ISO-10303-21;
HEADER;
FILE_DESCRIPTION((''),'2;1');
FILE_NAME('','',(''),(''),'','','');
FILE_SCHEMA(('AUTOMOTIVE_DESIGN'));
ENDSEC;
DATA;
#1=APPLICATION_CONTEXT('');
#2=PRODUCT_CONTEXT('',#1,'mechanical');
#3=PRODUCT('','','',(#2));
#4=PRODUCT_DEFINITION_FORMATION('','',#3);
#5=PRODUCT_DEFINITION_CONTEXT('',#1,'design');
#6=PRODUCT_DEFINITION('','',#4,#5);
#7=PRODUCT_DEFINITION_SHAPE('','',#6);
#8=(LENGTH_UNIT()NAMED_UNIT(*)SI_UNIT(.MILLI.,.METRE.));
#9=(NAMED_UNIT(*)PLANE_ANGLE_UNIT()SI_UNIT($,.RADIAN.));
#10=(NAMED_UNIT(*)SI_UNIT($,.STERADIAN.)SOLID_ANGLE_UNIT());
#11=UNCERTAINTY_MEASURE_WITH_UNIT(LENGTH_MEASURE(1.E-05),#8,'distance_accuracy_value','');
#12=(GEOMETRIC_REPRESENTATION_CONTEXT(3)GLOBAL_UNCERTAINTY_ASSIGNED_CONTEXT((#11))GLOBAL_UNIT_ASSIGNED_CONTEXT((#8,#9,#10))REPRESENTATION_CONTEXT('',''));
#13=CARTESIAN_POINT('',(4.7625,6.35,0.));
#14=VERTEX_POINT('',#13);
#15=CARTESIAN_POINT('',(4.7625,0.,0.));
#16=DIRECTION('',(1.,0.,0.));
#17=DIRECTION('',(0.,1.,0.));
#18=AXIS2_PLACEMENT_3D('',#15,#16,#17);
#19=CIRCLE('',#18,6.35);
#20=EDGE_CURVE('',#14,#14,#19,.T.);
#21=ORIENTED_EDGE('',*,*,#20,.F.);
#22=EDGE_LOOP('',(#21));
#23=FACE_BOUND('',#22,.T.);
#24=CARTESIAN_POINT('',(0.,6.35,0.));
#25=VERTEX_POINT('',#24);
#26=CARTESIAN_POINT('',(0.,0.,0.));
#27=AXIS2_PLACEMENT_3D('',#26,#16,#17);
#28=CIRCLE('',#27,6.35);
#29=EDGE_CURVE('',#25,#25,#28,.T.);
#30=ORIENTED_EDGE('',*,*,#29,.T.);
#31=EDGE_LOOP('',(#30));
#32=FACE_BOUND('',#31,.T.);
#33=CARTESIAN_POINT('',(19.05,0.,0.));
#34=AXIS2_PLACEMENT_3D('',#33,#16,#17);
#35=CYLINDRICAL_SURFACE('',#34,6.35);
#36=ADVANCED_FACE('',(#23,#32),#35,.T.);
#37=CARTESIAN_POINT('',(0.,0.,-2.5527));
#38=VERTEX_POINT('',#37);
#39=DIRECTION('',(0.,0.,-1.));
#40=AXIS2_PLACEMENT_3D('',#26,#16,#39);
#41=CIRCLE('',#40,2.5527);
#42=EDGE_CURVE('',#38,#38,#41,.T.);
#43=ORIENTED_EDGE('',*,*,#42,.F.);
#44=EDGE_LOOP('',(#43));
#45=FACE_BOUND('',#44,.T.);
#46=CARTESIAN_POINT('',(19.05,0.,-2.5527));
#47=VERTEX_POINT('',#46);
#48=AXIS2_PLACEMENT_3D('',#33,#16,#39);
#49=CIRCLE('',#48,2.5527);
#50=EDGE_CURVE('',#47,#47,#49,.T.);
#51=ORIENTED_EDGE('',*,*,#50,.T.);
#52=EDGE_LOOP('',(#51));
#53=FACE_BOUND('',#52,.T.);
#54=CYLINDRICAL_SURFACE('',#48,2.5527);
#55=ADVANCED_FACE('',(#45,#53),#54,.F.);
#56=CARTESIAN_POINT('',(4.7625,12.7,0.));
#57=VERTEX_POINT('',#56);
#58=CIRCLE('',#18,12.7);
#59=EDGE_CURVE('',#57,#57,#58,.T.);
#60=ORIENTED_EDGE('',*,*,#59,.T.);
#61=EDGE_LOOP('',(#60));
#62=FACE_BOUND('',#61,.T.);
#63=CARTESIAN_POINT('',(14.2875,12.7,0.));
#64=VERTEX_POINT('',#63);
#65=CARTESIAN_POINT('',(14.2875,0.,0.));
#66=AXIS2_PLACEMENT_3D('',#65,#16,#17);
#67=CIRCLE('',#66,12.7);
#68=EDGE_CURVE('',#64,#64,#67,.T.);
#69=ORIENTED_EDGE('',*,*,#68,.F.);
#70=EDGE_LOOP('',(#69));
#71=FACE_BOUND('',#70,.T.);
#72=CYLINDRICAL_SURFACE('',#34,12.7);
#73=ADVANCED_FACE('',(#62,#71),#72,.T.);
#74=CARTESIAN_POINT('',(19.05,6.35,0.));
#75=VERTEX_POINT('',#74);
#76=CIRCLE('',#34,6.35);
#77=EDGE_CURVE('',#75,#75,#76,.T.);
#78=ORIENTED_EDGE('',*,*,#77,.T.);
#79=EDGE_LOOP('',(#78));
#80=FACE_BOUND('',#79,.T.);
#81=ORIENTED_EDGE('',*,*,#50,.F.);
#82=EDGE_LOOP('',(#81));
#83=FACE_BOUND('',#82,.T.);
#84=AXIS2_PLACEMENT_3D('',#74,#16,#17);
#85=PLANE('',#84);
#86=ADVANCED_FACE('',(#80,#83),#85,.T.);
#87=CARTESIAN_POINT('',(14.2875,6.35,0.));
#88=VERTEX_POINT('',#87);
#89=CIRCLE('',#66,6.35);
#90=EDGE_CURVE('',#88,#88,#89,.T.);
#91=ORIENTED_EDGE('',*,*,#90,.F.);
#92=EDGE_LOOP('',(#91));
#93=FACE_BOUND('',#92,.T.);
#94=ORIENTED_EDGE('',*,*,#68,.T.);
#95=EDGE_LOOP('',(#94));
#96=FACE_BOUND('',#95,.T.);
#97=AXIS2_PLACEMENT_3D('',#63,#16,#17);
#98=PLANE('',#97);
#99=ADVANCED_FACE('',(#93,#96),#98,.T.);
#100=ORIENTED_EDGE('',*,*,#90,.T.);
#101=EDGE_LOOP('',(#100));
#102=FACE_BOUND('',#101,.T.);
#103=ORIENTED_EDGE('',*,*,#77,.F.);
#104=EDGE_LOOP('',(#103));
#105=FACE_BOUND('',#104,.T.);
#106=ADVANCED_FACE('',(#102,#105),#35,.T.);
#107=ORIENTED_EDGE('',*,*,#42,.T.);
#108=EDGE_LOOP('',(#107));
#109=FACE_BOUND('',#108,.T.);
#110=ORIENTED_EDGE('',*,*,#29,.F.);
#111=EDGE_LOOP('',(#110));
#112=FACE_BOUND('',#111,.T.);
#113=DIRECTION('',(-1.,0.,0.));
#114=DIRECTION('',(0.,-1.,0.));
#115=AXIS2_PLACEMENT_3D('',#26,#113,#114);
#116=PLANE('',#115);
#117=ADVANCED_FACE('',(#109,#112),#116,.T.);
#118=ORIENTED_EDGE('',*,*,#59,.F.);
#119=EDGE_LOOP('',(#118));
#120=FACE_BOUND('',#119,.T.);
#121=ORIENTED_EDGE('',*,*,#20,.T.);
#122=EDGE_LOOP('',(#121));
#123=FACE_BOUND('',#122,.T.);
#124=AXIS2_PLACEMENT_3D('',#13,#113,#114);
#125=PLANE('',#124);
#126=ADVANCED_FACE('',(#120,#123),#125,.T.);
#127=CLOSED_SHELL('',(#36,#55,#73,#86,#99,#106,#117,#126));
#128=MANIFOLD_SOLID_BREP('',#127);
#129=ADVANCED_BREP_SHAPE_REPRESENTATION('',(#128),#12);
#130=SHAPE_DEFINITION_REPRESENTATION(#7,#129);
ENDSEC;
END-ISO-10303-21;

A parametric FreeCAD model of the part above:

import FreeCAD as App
import Part
import Sketcher
from FreeCAD import Vector
Q = App.Units.Quantity


def add_polygon(sketch, points):
    """Adds a closed chain of lines whose ends are joined by coincident constraints."""
    first, n = sketch.GeometryCount, len(points)
    for a, b in zip(points, points[1:] + points[:1]):
        sketch.addGeometry(Part.LineSegment(App.Vector(*a, 0), App.Vector(*b, 0)), False)
    for i in range(n):
        sketch.addConstraint(Sketcher.Constraint("Coincident", first + i, 2, first + (i + 1) % n, 1))

doc = App.newDocument("Part")
body = doc.addObject("PartDesign::Body", "Body")

# Sketch on XY plane
sketch1 = doc.addObject("Sketcher::SketchObject", "Sketch")
body.addObject(sketch1)
sketch1.AttachmentSupport = (doc.XY_Plane, [""])
sketch1.MapMode = "FlatFace"
add_polygon(sketch1, [(0, 6.3), (0, 0), (19.1, 0), (19.1, 6.3), (14.3, 6.3), (14.3, 12.7), (4.8, 12.7), (4.8, 6.3)])  # lines 0-7
sketch1.addConstraint(Sketcher.Constraint("Vertical", 0))
sketch1.addConstraint(Sketcher.Constraint("Horizontal", 1))
sketch1.addConstraint(Sketcher.Constraint("Vertical", 2))
sketch1.addConstraint(Sketcher.Constraint("Horizontal", 3))
sketch1.addConstraint(Sketcher.Constraint("Vertical", 4))
sketch1.addConstraint(Sketcher.Constraint("Horizontal", 5))
sketch1.addConstraint(Sketcher.Constraint("Vertical", 6))
sketch1.addConstraint(Sketcher.Constraint("Horizontal", 7))
sketch1.addConstraint(Sketcher.Constraint("Coincident", 0, 2, -1, 1))
sketch1.addConstraint(Sketcher.Constraint("Horizontal", 3, 2, 6, 2))
sketch1.addConstraint(Sketcher.Constraint("Equal", 3, 7))
sketch1.addConstraint(Sketcher.Constraint("Equal", 2, 4))
sketch1.addConstraint(Sketcher.Constraint("DistanceX", 1, 1, 1, 2, Q("0.75 in")))
sketch1.addConstraint(Sketcher.Constraint("DistanceY", 0, 2, 0, 1, Q("0.25 in")))
sketch1.addConstraint(Sketcher.Constraint("DistanceX", 3, 2, 3, 1, Q("0.1875 in")))
revolution = doc.addObject("PartDesign::Revolution", "Revolution")
body.addObject(revolution)
revolution.Profile = sketch1
revolution.ReferenceAxis = (sketch1, ["H_Axis"])
revolution.Angle = 360

# Sketch on YZ plane
sketch2 = doc.addObject("Sketcher::SketchObject", "Sketch001")
body.addObject(sketch2)
sketch2.AttachmentSupport = (doc.YZ_Plane, [""])
sketch2.MapMode = "FlatFace"
sketch2.AttachmentOffset = App.Placement(Vector(0, 0, 0.75 * 25.4), App.Rotation())
sketch2.addGeometry(Part.Circle(Vector(0, 0, 0), Vector(0, 0, 1), 2.6), False)
sketch2.addConstraint(Sketcher.Constraint("Coincident", 0, 3, -1, 1))
sketch2.addConstraint(Sketcher.Constraint("Diameter", 0, Q("0.201 in")))
doc.recompute()
hole = doc.addObject("PartDesign::Hole", "Hole")
body.addObject(hole)
hole.Profile = sketch2
hole.ThreadType = "None"
hole.Diameter = Q("0.201 in")
hole.DepthType = "ThroughAll"

doc.recompute()
